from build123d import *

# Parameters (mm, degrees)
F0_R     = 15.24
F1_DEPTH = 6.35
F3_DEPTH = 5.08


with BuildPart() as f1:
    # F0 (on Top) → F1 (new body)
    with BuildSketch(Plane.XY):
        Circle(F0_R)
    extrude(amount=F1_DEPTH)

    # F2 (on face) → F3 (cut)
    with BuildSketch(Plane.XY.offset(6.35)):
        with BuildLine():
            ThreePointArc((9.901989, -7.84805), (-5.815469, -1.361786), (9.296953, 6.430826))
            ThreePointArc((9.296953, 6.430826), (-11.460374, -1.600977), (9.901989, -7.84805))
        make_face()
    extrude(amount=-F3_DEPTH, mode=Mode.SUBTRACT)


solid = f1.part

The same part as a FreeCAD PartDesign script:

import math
import FreeCAD as App
import Part
import Sketcher
Q = App.Units.Quantity

doc = App.newDocument("Part")
params = doc.addObject("Spreadsheet::Sheet", "Params")
for row, (alias, value) in enumerate([
    ("sketch1_diameter", "1.2 in"),
    ("pad1_length", "0.25 in"),
    ("pocket1_length", "0.2 in"),
], start=1):
    params.set(f"A{row}", alias)
    params.set(f"B{row}", "=" + value)
    params.setAlias(f"B{row}", alias)

body = doc.addObject("PartDesign::Body", "Body")

# Sketch on XY plane
sketch1 = doc.addObject("Sketcher::SketchObject", "Sketch")
body.addObject(sketch1)
sketch1.AttachmentSupport = (doc.XY_Plane, [""])
sketch1.MapMode = "FlatFace"
sketch1.addGeometry(Part.Circle(App.Vector(0, 0, 0), App.Vector(0, 0, 1), 15.24), False)
sketch1.addConstraint([
    Sketcher.Constraint("Coincident", 0, 3, -1, 1),
    Sketcher.Constraint("Diameter", 0, Q("1.2 in")),
])
sketch1.setExpression("Constraints[1]", "Params.sketch1_diameter")
pad1 = doc.addObject("PartDesign::Pad", "Pad")
body.addObject(pad1)
pad1.Profile = sketch1
pad1.setExpression("Length", "Params.pad1_length")

# Sketch on XY plane
sketch2 = doc.addObject("Sketcher::SketchObject", "Sketch001")
body.addObject(sketch2)
sketch2.AttachmentSupport = (doc.XY_Plane, [""])
sketch2.MapMode = "FlatFace"
sketch2.AttachmentOffset = App.Placement(App.Vector(0, 0, 0.25 * 25.4), App.Rotation())
sketch2.addGeometry([
    Part.ArcOfCircle(Part.Circle(App.Vector(3.545318, -0.965143, 0), App.Vector(0, 0, 1), 9.369187), math.radians(52.12881), math.radians(312.723852)),
    Part.ArcOfCircle(Part.Circle(App.Vector(0.279709, -1.103516, 0), App.Vector(0, 0, 1), 11.750617), math.radians(39.880384), math.radians(324.972279)),
], False)
sketch2.addConstraint([
    Sketcher.Constraint("Coincident", 0, 1, 1, 1),
    Sketcher.Constraint("Coincident", 1, 2, 0, 2),
    Sketcher.Constraint("Radius", 0, 9.369187),
    Sketcher.Constraint("Radius", 1, 11.750617),
    Sketcher.Constraint("DistanceX", -1, 1, 0, 3, 3.545318),
    Sketcher.Constraint("DistanceX", -1, 1, 1, 3, 0.279709),
    Sketcher.Constraint("DistanceX", -1, 1, 1, 2, 9.901989),
    Sketcher.Constraint("DistanceY", 1, 2, -1, 1, 7.84805),
])
pocket1 = doc.addObject("PartDesign::Pocket", "Pocket")
body.addObject(pocket1)
pocket1.Profile = sketch2
pocket1.setExpression("Length", "Params.pocket1_length")

doc.recompute()
